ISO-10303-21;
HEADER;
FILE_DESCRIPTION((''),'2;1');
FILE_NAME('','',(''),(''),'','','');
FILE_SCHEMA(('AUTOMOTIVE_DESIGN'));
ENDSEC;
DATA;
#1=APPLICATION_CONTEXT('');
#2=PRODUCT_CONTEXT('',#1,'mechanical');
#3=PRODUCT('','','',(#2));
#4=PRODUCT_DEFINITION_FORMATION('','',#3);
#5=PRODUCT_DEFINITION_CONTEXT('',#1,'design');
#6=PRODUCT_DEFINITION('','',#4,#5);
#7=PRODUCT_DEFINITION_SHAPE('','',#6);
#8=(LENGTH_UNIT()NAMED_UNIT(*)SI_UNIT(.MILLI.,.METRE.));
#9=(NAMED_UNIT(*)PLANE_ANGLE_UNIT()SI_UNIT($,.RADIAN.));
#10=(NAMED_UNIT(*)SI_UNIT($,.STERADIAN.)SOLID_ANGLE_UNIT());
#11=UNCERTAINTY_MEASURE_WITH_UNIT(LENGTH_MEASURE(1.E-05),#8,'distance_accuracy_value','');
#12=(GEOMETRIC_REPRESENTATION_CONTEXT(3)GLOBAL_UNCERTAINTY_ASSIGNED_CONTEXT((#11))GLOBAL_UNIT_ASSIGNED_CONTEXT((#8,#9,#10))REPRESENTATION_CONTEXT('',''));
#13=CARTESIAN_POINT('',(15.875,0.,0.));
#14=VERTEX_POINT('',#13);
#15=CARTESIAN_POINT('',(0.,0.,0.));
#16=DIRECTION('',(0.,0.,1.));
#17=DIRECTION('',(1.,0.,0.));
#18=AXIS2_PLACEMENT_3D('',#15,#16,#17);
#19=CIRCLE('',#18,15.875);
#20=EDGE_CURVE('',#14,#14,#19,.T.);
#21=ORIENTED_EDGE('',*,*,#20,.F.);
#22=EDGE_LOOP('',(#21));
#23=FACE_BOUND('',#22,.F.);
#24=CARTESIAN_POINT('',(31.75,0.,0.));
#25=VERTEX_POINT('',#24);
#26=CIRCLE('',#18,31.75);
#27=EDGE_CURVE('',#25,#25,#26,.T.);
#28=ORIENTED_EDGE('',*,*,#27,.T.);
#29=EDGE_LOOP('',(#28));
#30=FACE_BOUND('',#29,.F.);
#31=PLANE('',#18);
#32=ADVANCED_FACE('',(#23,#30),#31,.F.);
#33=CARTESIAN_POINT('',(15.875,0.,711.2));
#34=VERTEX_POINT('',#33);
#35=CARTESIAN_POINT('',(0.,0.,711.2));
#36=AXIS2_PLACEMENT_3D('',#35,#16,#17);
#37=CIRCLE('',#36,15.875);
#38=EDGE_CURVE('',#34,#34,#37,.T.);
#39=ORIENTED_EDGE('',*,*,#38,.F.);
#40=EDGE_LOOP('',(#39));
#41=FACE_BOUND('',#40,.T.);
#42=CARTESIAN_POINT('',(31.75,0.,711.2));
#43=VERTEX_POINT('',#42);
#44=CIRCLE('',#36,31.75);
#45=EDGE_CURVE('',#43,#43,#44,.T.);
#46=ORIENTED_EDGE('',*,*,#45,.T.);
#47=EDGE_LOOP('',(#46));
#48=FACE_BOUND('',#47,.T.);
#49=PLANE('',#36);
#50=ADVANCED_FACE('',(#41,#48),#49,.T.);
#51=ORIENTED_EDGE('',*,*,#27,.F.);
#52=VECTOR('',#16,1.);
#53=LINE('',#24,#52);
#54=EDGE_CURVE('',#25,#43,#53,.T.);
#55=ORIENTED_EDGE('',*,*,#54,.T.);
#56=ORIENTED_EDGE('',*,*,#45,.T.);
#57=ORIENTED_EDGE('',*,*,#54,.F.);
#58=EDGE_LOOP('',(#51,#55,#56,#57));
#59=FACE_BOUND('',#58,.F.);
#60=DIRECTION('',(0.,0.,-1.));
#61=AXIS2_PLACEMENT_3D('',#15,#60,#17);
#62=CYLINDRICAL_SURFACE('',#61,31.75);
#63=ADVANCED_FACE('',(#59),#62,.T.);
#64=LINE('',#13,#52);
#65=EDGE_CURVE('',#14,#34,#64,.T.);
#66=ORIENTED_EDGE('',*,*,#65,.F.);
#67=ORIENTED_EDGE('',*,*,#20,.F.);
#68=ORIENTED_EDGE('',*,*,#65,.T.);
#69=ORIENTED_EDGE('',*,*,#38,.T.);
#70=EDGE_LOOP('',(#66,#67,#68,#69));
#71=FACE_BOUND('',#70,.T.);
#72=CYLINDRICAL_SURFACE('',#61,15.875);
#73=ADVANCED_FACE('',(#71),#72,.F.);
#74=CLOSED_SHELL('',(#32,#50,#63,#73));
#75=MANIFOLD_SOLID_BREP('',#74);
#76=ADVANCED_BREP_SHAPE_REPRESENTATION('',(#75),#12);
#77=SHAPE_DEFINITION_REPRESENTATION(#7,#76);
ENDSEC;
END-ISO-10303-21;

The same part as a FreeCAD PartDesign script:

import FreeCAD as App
import Part
import Sketcher
from FreeCAD import Vector
Q = App.Units.Quantity

doc = App.newDocument("Part")
body = doc.addObject("PartDesign::Body", "Body")

sketch1 = doc.addObject("Sketcher::SketchObject", "Sketch")
body.addObject(sketch1)
sketch1.AttachmentSupport = (doc.XY_Plane, [""])
sketch1.MapMode = "FlatFace"
sketch1.addGeometry([
    Part.Circle(Vector(0, 0, 0), Vector(0, 0, 1), 32),
    Part.Circle(Vector(0, 0, 0), Vector(0, 0, 1), 16),
], False)
sketch1.addConstraint([
    Sketcher.Constraint("Coincident", 0, 3, -1, 1),
    Sketcher.Constraint("Coincident", 1, 3, -1, 1),
    Sketcher.Constraint("Diameter", 0, Q("2.5 in")),
    Sketcher.Constraint("Diameter", 1, Q("1.25 in")),
])
pad1 = doc.addObject("PartDesign::Pad", "Pad")
body.addObject(pad1)
pad1.Profile = sketch1
pad1.Length = Q("28 in")

doc.recompute()
